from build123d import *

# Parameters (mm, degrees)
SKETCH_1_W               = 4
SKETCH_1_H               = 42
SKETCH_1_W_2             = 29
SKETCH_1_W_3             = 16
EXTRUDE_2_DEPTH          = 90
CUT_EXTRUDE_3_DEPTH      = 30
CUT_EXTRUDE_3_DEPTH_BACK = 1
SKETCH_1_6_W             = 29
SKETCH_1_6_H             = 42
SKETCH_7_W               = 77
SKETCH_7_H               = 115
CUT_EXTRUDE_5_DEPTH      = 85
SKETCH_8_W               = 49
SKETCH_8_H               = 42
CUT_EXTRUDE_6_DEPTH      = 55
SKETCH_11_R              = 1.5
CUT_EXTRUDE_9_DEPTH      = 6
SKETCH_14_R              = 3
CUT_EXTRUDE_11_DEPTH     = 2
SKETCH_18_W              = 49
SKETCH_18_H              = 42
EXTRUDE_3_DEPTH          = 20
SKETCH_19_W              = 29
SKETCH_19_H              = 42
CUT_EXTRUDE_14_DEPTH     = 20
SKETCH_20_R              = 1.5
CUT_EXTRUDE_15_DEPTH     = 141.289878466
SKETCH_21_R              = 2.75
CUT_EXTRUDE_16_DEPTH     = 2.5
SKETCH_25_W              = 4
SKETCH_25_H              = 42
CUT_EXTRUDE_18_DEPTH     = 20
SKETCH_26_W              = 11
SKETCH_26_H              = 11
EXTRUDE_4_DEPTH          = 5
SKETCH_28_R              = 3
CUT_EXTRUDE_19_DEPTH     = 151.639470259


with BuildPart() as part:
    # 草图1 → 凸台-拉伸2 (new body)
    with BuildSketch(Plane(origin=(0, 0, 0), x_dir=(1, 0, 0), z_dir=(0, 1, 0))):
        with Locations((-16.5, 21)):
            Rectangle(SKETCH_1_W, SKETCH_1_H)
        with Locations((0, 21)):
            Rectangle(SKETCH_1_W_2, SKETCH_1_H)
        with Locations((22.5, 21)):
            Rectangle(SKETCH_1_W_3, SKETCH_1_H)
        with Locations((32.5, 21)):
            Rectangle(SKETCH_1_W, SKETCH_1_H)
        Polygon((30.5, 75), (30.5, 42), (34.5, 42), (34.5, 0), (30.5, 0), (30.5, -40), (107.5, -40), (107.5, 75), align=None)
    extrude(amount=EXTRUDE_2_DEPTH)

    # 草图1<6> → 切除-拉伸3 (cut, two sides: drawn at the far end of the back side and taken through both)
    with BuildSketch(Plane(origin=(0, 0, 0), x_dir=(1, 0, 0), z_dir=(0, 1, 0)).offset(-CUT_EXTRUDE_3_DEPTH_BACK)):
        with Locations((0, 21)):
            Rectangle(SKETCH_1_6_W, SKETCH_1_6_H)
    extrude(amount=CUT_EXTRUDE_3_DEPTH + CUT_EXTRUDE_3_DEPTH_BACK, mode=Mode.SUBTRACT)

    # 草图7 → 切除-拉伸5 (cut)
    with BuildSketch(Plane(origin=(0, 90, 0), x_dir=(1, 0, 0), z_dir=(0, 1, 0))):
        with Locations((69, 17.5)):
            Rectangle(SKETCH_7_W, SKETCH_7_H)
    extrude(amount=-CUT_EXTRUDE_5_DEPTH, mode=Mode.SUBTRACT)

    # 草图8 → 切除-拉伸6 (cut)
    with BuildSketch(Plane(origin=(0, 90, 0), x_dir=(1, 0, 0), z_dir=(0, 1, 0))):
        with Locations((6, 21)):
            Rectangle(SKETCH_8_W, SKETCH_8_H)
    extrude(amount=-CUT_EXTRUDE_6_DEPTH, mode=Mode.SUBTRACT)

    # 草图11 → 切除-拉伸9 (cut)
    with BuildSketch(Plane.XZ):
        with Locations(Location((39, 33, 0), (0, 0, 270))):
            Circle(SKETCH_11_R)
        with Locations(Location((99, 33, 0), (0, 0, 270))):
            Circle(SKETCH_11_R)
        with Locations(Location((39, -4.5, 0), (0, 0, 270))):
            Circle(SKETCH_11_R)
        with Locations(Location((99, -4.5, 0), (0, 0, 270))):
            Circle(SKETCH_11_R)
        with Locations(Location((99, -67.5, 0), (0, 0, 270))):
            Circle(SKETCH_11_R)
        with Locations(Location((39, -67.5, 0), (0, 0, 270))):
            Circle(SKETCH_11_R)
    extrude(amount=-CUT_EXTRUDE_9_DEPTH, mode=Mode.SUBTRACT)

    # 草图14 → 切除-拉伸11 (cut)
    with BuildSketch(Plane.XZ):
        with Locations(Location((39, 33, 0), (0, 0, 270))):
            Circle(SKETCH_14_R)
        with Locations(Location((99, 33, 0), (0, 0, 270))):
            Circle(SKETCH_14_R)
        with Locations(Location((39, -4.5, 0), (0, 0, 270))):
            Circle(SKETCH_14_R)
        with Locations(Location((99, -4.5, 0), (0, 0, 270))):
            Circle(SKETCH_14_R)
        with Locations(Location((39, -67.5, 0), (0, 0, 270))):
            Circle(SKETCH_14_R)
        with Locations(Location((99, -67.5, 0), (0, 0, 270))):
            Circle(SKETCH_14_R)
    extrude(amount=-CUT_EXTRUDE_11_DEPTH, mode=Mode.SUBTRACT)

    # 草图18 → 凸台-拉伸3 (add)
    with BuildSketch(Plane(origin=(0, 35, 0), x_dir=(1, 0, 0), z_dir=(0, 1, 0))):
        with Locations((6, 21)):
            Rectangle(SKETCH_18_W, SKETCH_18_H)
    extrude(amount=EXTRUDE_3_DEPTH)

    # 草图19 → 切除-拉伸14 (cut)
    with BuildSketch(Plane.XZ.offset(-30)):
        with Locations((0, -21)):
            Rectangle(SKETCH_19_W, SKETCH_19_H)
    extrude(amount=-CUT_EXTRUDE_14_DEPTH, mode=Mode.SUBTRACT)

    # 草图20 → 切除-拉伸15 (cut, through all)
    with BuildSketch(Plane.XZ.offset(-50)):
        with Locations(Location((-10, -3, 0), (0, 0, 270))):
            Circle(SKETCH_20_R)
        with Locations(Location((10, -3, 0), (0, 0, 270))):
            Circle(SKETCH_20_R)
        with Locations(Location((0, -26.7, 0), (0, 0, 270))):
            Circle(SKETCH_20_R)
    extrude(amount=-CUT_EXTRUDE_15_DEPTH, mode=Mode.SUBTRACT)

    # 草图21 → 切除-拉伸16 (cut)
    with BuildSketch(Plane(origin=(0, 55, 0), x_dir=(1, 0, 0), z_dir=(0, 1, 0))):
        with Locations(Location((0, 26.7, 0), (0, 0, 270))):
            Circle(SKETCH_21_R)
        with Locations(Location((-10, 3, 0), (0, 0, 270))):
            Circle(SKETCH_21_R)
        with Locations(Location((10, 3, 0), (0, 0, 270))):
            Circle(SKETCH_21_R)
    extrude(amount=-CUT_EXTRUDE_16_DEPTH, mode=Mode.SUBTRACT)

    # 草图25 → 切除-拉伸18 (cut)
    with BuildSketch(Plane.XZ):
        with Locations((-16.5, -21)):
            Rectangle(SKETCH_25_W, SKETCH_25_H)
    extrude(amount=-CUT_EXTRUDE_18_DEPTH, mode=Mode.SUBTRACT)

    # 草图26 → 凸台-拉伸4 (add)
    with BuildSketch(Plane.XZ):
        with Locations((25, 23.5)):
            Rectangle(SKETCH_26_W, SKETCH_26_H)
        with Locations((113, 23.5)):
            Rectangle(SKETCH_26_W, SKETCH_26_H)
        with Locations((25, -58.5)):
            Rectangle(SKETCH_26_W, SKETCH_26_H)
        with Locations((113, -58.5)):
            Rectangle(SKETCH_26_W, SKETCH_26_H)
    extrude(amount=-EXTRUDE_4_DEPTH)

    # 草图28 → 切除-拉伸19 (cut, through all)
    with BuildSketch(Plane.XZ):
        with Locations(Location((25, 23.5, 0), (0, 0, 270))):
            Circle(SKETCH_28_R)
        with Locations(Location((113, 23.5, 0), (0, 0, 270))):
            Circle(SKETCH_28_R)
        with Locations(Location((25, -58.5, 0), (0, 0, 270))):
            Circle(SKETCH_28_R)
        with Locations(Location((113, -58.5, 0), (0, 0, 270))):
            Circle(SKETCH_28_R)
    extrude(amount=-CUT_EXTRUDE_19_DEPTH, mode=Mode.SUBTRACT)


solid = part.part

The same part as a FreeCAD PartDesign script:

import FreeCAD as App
import Part
import Sketcher
Q = App.Units.Quantity

doc = App.newDocument("Part")
body = doc.addObject("PartDesign::Body", "Body")

# Sketch on XZ plane
sketch1 = body.newObject("Sketcher::SketchObject", "Sketch")
sketch1.AttachmentSupport = (doc.getObject("XZ_Plane"), [""])
sketch1.MapMode = "FlatFace"
sketch1.addGeometry(Part.LineSegment(App.Vector(-18, -42, 0), App.Vector(-18, 0, 0)), False)
sketch1.addGeometry(Part.LineSegment(App.Vector(-18, 0, 0), App.Vector(30, 0, 0)), False)
sketch1.addGeometry(Part.LineSegment(App.Vector(30, 0, 0), App.Vector(30, 40, 0)), False)
sketch1.addGeometry(Part.LineSegment(App.Vector(30, 40, 0), App.Vector(108, 40, 0)), False)
sketch1.addGeometry(Part.LineSegment(App.Vector(108, 40, 0), App.Vector(108, -75, 0)), False)
sketch1.addGeometry(Part.LineSegment(App.Vector(108, -75, 0), App.Vector(30, -75, 0)), False)
sketch1.addGeometry(Part.LineSegment(App.Vector(30, -75, 0), App.Vector(30, -42, 0)), False)
sketch1.addGeometry(Part.LineSegment(App.Vector(30, -42, 0), App.Vector(-18, -42, 0)), False)
sketch1.addConstraint(Sketcher.Constraint("Coincident", 0, 2, 1, 1))
sketch1.addConstraint(Sketcher.Constraint("Coincident", 1, 2, 2, 1))
sketch1.addConstraint(Sketcher.Constraint("Coincident", 2, 2, 3, 1))
sketch1.addConstraint(Sketcher.Constraint("Coincident", 3, 2, 4, 1))
sketch1.addConstraint(Sketcher.Constraint("Coincident", 4, 2, 5, 1))
sketch1.addConstraint(Sketcher.Constraint("Coincident", 5, 2, 6, 1))
sketch1.addConstraint(Sketcher.Constraint("Coincident", 6, 2, 7, 1))
sketch1.addConstraint(Sketcher.Constraint("Coincident", 7, 2, 0, 1))
sketch1.addConstraint(Sketcher.Constraint("Vertical", 0))
sketch1.addConstraint(Sketcher.Constraint("Horizontal", 1))
sketch1.addConstraint(Sketcher.Constraint("Vertical", 2))
sketch1.addConstraint(Sketcher.Constraint("Horizontal", 3))
sketch1.addConstraint(Sketcher.Constraint("Vertical", 4))
sketch1.addConstraint(Sketcher.Constraint("Horizontal", 5))
sketch1.addConstraint(Sketcher.Constraint("Vertical", 6))
sketch1.addConstraint(Sketcher.Constraint("Horizontal", 7))
sketch1.addConstraint(Sketcher.Constraint("PointOnObject", 0, 2, -1))
sketch1.addConstraint(Sketcher.Constraint("Vertical", 2, 2, 5, 2))
sketch1.addConstraint(Sketcher.Constraint("DistanceX", 1, 1, 1, 2, Q("49 mm")))
sketch1.addConstraint(Sketcher.Constraint("DistanceX", 3, 1, 3, 2, Q("77 mm")))
sketch1.addConstraint(Sketcher.Constraint("DistanceY", 0, 1, 0, 2, Q("42 mm")))
sketch1.addConstraint(Sketcher.Constraint("DistanceY", 2, 1, 2, 2, Q("40 mm")))
sketch1.addConstraint(Sketcher.Constraint("DistanceY", 4, 2, 4, 1, Q("115 mm")))
sketch1.addConstraint(Sketcher.Constraint("DistanceX", 0, 2, -1, 1, Q("18.5 mm")))
pad1 = body.newObject("PartDesign::Pad", "Pad")
pad1.Profile = sketch1
pad1.Length = 90
pad1.Reversed = True

# Sketch on XZ plane
sketch2 = body.newObject("Sketcher::SketchObject", "Sketch001")
sketch2.AttachmentSupport = (doc.getObject("XZ_Plane"), [""])
sketch2.MapMode = "FlatFace"
sketch2.addGeometry(Part.LineSegment(App.Vector(-14, -42, 0), App.Vector(-14, 0, 0)), False)
sketch2.addGeometry(Part.LineSegment(App.Vector(-14, 0, 0), App.Vector(14, 0, 0)), False)
sketch2.addGeometry(Part.LineSegment(App.Vector(14, 0, 0), App.Vector(14, -42, 0)), False)
sketch2.addGeometry(Part.LineSegment(App.Vector(14, -42, 0), App.Vector(-14, -42, 0)), False)
sketch2.addConstraint(Sketcher.Constraint("Coincident", 0, 2, 1, 1))
sketch2.addConstraint(Sketcher.Constraint("Coincident", 1, 2, 2, 1))
sketch2.addConstraint(Sketcher.Constraint("Coincident", 2, 2, 3, 1))
sketch2.addConstraint(Sketcher.Constraint("Coincident", 3, 2, 0, 1))
sketch2.addConstraint(Sketcher.Constraint("Vertical", 0))
sketch2.addConstraint(Sketcher.Constraint("Horizontal", 1))
sketch2.addConstraint(Sketcher.Constraint("Vertical", 2))
sketch2.addConstraint(Sketcher.Constraint("Horizontal", 3))
sketch2.addConstraint(Sketcher.Constraint("Symmetric", 0, 2, 1, 2, -1, 1))
sketch2.addConstraint(Sketcher.Constraint("DistanceX", 1, 1, 1, 2, Q("29 mm")))
sketch2.addConstraint(Sketcher.Constraint("DistanceY", 0, 1, 0, 2, Q("42 mm")))
pocket1 = body.newObject("PartDesign::Pocket", "Pocket")
pocket1.Profile = sketch2
pocket1.Type = "TwoLengths"
pocket1.Length = 30
pocket1.Length2 = 1

# Sketch on XZ plane
sketch3 = body.newObject("Sketcher::SketchObject", "Sketch002")
sketch3.AttachmentSupport = (doc.getObject("XZ_Plane"), [""])
sketch3.MapMode = "FlatFace"
sketch3.AttachmentOffset = App.Placement(App.Vector(0, 0, -90), App.Rotation())
sketch3.addGeometry(Part.LineSegment(App.Vector(30, -75, 0), App.Vector(30, 40, 0)), False)
sketch3.addGeometry(Part.LineSegment(App.Vector(30, 40, 0), App.Vector(108, 40, 0)), False)
sketch3.addGeometry(Part.LineSegment(App.Vector(108, 40, 0), App.Vector(108, -75, 0)), False)
sketch3.addGeometry(Part.LineSegment(App.Vector(108, -75, 0), App.Vector(30, -75, 0)), False)
sketch3.addConstraint(Sketcher.Constraint("Coincident", 0, 2, 1, 1))
sketch3.addConstraint(Sketcher.Constraint("Coincident", 1, 2, 2, 1))
sketch3.addConstraint(Sketcher.Constraint("Coincident", 2, 2, 3, 1))
sketch3.addConstraint(Sketcher.Constraint("Coincident", 3, 2, 0, 1))
sketch3.addConstraint(Sketcher.Constraint("Vertical", 0))
sketch3.addConstraint(Sketcher.Constraint("Horizontal", 1))
sketch3.addConstraint(Sketcher.Constraint("Vertical", 2))
sketch3.addConstraint(Sketcher.Constraint("Horizontal", 3))
sketch3.addConstraint(Sketcher.Constraint("DistanceX", 1, 1, 1, 2, Q("77 mm")))
sketch3.addConstraint(Sketcher.Constraint("DistanceY", 0, 1, 0, 2, Q("115 mm")))
sketch3.addConstraint(Sketcher.Constraint("DistanceY", -1, 1, 0, 2, Q("40 mm")))
sketch3.addConstraint(Sketcher.Constraint("DistanceX", -1, 1, 0, 2, Q("30.5 mm")))
pocket2 = body.newObject("PartDesign::Pocket", "Pocket001")
pocket2.Profile = sketch3
pocket2.Length = 85
pocket2.Reversed = True

# Sketch on XZ plane
sketch4 = body.newObject("Sketcher::SketchObject", "Sketch003")
sketch4.AttachmentSupport = (doc.getObject("XZ_Plane"), [""])
sketch4.MapMode = "FlatFace"
sketch4.AttachmentOffset = App.Placement(App.Vector(0, 0, -90), App.Rotation())
sketch4.addGeometry(Part.LineSegment(App.Vector(-18, -42, 0), App.Vector(-18, 0, 0)), False)
sketch4.addGeometry(Part.LineSegment(App.Vector(-18, 0, 0), App.Vector(30, 0, 0)), False)
sketch4.addGeometry(Part.LineSegment(App.Vector(30, 0, 0), App.Vector(30, -42, 0)), False)
sketch4.addGeometry(Part.LineSegment(App.Vector(30, -42, 0), App.Vector(-18, -42, 0)), False)
sketch4.addConstraint(Sketcher.Constraint("Coincident", 0, 2, 1, 1))
sketch4.addConstraint(Sketcher.Constraint("Coincident", 1, 2, 2, 1))
sketch4.addConstraint(Sketcher.Constraint("Coincident", 2, 2, 3, 1))
sketch4.addConstraint(Sketcher.Constraint("Coincident", 3, 2, 0, 1))
sketch4.addConstraint(Sketcher.Constraint("Vertical", 0))
sketch4.addConstraint(Sketcher.Constraint("Horizontal", 1))
sketch4.addConstraint(Sketcher.Constraint("Vertical", 2))
sketch4.addConstraint(Sketcher.Constraint("Horizontal", 3))
sketch4.addConstraint(Sketcher.Constraint("PointOnObject", 0, 2, -1))
sketch4.addConstraint(Sketcher.Constraint("DistanceX", 1, 1, 1, 2, Q("49 mm")))
sketch4.addConstraint(Sketcher.Constraint("DistanceY", 0, 1, 0, 2, Q("42 mm")))
sketch4.addConstraint(Sketcher.Constraint("DistanceX", 0, 2, -1, 1, Q("18.5 mm")))
pocket3 = body.newObject("PartDesign::Pocket", "Pocket002")
pocket3.Profile = sketch4
pocket3.Length = 55
pocket3.Reversed = True

# Sketch on XZ plane
sketch5 = body.newObject("Sketcher::SketchObject", "Sketch004")
sketch5.AttachmentSupport = (doc.getObject("XZ_Plane"), [""])
sketch5.MapMode = "FlatFace"
sketch5.addGeometry(Part.Circle(App.Vector(39, 33, 0), App.Vector(0, 0, 1), 1.5), False)
sketch5.addGeometry(Part.Circle(App.Vector(99, 33, 0), App.Vector(0, 0, 1), 1.5), False)
sketch5.addGeometry(Part.Circle(App.Vector(39, -4.5, 0), App.Vector(0, 0, 1), 1.5), False)
sketch5.addGeometry(Part.Circle(App.Vector(99, -4.5, 0), App.Vector(0, 0, 1), 1.5), False)
sketch5.addGeometry(Part.Circle(App.Vector(99, -67.5, 0), App.Vector(0, 0, 1), 1.5), False)
sketch5.addGeometry(Part.Circle(App.Vector(39, -67.5, 0), App.Vector(0, 0, 1), 1.5), False)
sketch5.addConstraint(Sketcher.Constraint("Equal", 0, 1))
sketch5.addConstraint(Sketcher.Constraint("Equal", 1, 2))
sketch5.addConstraint(Sketcher.Constraint("Equal", 2, 3))
sketch5.addConstraint(Sketcher.Constraint("Equal", 3, 4))
sketch5.addConstraint(Sketcher.Constraint("Equal", 4, 5))
sketch5.addConstraint(Sketcher.Constraint("Horizontal", 0, 3, 1, 3))
sketch5.addConstraint(Sketcher.Constraint("Horizontal", 2, 3, 3, 3))
sketch5.addConstraint(Sketcher.Constraint("Horizontal", 4, 3, 5, 3))
sketch5.addConstraint(Sketcher.Constraint("Vertical", 0, 3, 2, 3))
sketch5.addConstraint(Sketcher.Constraint("Vertical", 1, 3, 3, 3))
sketch5.addConstraint(Sketcher.Constraint("Vertical", 3, 3, 4, 3))
sketch5.addConstraint(Sketcher.Constraint("Vertical", 2, 3, 5, 3))
sketch5.addConstraint(Sketcher.Constraint("Diameter", 0, Q("3 mm")))
sketch5.addConstraint(Sketcher.Constraint("DistanceX", -1, 1, 0, 3, Q("39 mm")))
sketch5.addConstraint(Sketcher.Constraint("DistanceY", -1, 1, 0, 3, Q("33 mm")))
sketch5.addConstraint(Sketcher.Constraint("DistanceX", -1, 1, 1, 3, Q("99 mm")))
sketch5.addConstraint(Sketcher.Constraint("DistanceY", 4, 3, 3, 3, Q("63 mm")))
sketch5.addConstraint(Sketcher.Constraint("DistanceY", 2, 3, -1, 1, Q("4.5 mm")))
pocket4 = body.newObject("PartDesign::Pocket", "Pocket003")
pocket4.Profile = sketch5
pocket4.Length = 6

# Sketch on XZ plane
sketch6 = body.newObject("Sketcher::SketchObject", "Sketch005")
sketch6.AttachmentSupport = (doc.getObject("XZ_Plane"), [""])
sketch6.MapMode = "FlatFace"
sketch6.addGeometry(Part.Circle(App.Vector(39, 33, 0), App.Vector(0, 0, 1), 3), False)
sketch6.addGeometry(Part.Circle(App.Vector(99, 33, 0), App.Vector(0, 0, 1), 3), False)
sketch6.addGeometry(Part.Circle(App.Vector(39, -4.5, 0), App.Vector(0, 0, 1), 3), False)
sketch6.addGeometry(Part.Circle(App.Vector(99, -4.5, 0), App.Vector(0, 0, 1), 3), False)
sketch6.addGeometry(Part.Circle(App.Vector(39, -67.5, 0), App.Vector(0, 0, 1), 3), False)
sketch6.addGeometry(Part.Circle(App.Vector(99, -67.5, 0), App.Vector(0, 0, 1), 3), False)
sketch6.addConstraint(Sketcher.Constraint("Equal", 0, 1))
sketch6.addConstraint(Sketcher.Constraint("Equal", 1, 2))
sketch6.addConstraint(Sketcher.Constraint("Equal", 2, 3))
sketch6.addConstraint(Sketcher.Constraint("Equal", 3, 4))
sketch6.addConstraint(Sketcher.Constraint("Equal", 4, 5))
sketch6.addConstraint(Sketcher.Constraint("Horizontal", 0, 3, 1, 3))
sketch6.addConstraint(Sketcher.Constraint("Horizontal", 2, 3, 3, 3))
sketch6.addConstraint(Sketcher.Constraint("Horizontal", 4, 3, 5, 3))
sketch6.addConstraint(Sketcher.Constraint("Vertical", 0, 3, 2, 3))
sketch6.addConstraint(Sketcher.Constraint("Vertical", 1, 3, 3, 3))
sketch6.addConstraint(Sketcher.Constraint("Vertical", 2, 3, 4, 3))
sketch6.addConstraint(Sketcher.Constraint("Vertical", 3, 3, 5, 3))
sketch6.addConstraint(Sketcher.Constraint("Diameter", 0, Q("6 mm")))
sketch6.addConstraint(Sketcher.Constraint("DistanceX", -1, 1, 0, 3, Q("39 mm")))
sketch6.addConstraint(Sketcher.Constraint("DistanceY", -1, 1, 0, 3, Q("33 mm")))
sketch6.addConstraint(Sketcher.Constraint("DistanceX", -1, 1, 1, 3, Q("99 mm")))
sketch6.addConstraint(Sketcher.Constraint("DistanceY", 4, 3, 2, 3, Q("63 mm")))
sketch6.addConstraint(Sketcher.Constraint("DistanceY", 2, 3, -1, 1, Q("4.5 mm")))
pocket5 = body.newObject("PartDesign::Pocket", "Pocket004")
pocket5.Profile = sketch6
pocket5.Length = 2

# Sketch on XZ plane
sketch7 = body.newObject("Sketcher::SketchObject", "Sketch006")
sketch7.AttachmentSupport = (doc.getObject("XZ_Plane"), [""])
sketch7.MapMode = "FlatFace"
sketch7.AttachmentOffset = App.Placement(App.Vector(0, 0, -35), App.Rotation())
sketch7.addGeometry(Part.LineSegment(App.Vector(-18, -42, 0), App.Vector(-18, 0, 0)), False)
sketch7.addGeometry(Part.LineSegment(App.Vector(-18, 0, 0), App.Vector(30, 0, 0)), False)
sketch7.addGeometry(Part.LineSegment(App.Vector(30, 0, 0), App.Vector(30, -42, 0)), False)
sketch7.addGeometry(Part.LineSegment(App.Vector(30, -42, 0), App.Vector(-18, -42, 0)), False)
sketch7.addConstraint(Sketcher.Constraint("Coincident", 0, 2, 1, 1))
sketch7.addConstraint(Sketcher.Constraint("Coincident", 1, 2, 2, 1))
sketch7.addConstraint(Sketcher.Constraint("Coincident", 2, 2, 3, 1))
sketch7.addConstraint(Sketcher.Constraint("Coincident", 3, 2, 0, 1))
sketch7.addConstraint(Sketcher.Constraint("Vertical", 0))
sketch7.addConstraint(Sketcher.Constraint("Horizontal", 1))
sketch7.addConstraint(Sketcher.Constraint("Vertical", 2))
sketch7.addConstraint(Sketcher.Constraint("Horizontal", 3))
sketch7.addConstraint(Sketcher.Constraint("PointOnObject", 0, 2, -1))
sketch7.addConstraint(Sketcher.Constraint("DistanceX", 1, 1, 1, 2, Q("49 mm")))
sketch7.addConstraint(Sketcher.Constraint("DistanceY", 0, 1, 0, 2, Q("42 mm")))
sketch7.addConstraint(Sketcher.Constraint("DistanceX", 0, 2, -1, 1, Q("18.5 mm")))
pad2 = body.newObject("PartDesign::Pad", "Pad001")
pad2.Profile = sketch7
pad2.Length = 20
pad2.Reversed = True

# Sketch on XZ plane
sketch8 = body.newObject("Sketcher::SketchObject", "Sketch007")
sketch8.AttachmentSupport = (doc.getObject("XZ_Plane"), [""])
sketch8.MapMode = "FlatFace"
sketch8.AttachmentOffset = App.Placement(App.Vector(0, 0, -30), App.Rotation())
sketch8.addGeometry(Part.LineSegment(App.Vector(-14, 0, 0), App.Vector(-14, -42, 0)), False)
sketch8.addGeometry(Part.LineSegment(App.Vector(-14, -42, 0), App.Vector(14, -42, 0)), False)
sketch8.addGeometry(Part.LineSegment(App.Vector(14, -42, 0), App.Vector(14, 0, 0)), False)
sketch8.addGeometry(Part.LineSegment(App.Vector(14, 0, 0), App.Vector(-14, 0, 0)), False)
sketch8.addConstraint(Sketcher.Constraint("Coincident", 0, 2, 1, 1))
sketch8.addConstraint(Sketcher.Constraint("Coincident", 1, 2, 2, 1))
sketch8.addConstraint(Sketcher.Constraint("Coincident", 2, 2, 3, 1))
sketch8.addConstraint(Sketcher.Constraint("Coincident", 3, 2, 0, 1))
sketch8.addConstraint(Sketcher.Constraint("Vertical", 0))
sketch8.addConstraint(Sketcher.Constraint("Horizontal", 1))
sketch8.addConstraint(Sketcher.Constraint("Vertical", 2))
sketch8.addConstraint(Sketcher.Constraint("Horizontal", 3))
sketch8.addConstraint(Sketcher.Constraint("Symmetric", 2, 2, 3, 2, -1, 1))
sketch8.addConstraint(Sketcher.Constraint("DistanceX", 1, 1, 1, 2, Q("29 mm")))
sketch8.addConstraint(Sketcher.Constraint("DistanceY", 0, 2, 0, 1, Q("42 mm")))
pocket6 = body.newObject("PartDesign::Pocket", "Pocket005")
pocket6.Profile = sketch8
pocket6.Length = 20

# Sketch on XZ plane
sketch9 = body.newObject("Sketcher::SketchObject", "Sketch008")
sketch9.AttachmentSupport = (doc.getObject("XZ_Plane"), [""])
sketch9.MapMode = "FlatFace"
sketch9.AttachmentOffset = App.Placement(App.Vector(0, 0, -50), App.Rotation())
sketch9.addGeometry(Part.Circle(App.Vector(-10, -3, 0), App.Vector(0, 0, 1), 1.5), False)
sketch9.addGeometry(Part.Circle(App.Vector(10, -3, 0), App.Vector(0, 0, 1), 1.5), False)
sketch9.addGeometry(Part.Circle(App.Vector(0, -26.7, 0), App.Vector(0, 0, 1), 1.5), False)
sketch9.addConstraint(Sketcher.Constraint("Equal", 0, 1))
sketch9.addConstraint(Sketcher.Constraint("Equal", 1, 2))
sketch9.addConstraint(Sketcher.Constraint("Symmetric", 0, 3, 1, 3, -2))
sketch9.addConstraint(Sketcher.Constraint("PointOnObject", 2, 3, -2))
sketch9.addConstraint(Sketcher.Constraint("Diameter", 0, Q("3 mm")))
sketch9.addConstraint(Sketcher.Constraint("DistanceX", 0, 3, -1, 1, Q("10 mm")))
sketch9.addConstraint(Sketcher.Constraint("DistanceY", 0, 3, -1, 1, Q("3 mm")))
sketch9.addConstraint(Sketcher.Constraint("DistanceY", 2, 3, -1, 1, Q("26.7 mm")))
pocket7 = body.newObject("PartDesign::Pocket", "Pocket006")
pocket7.Profile = sketch9
pocket7.Type = "ThroughAll"

# Sketch on XZ plane
sketch10 = body.newObject("Sketcher::SketchObject", "Sketch009")
sketch10.AttachmentSupport = (doc.getObject("XZ_Plane"), [""])
sketch10.MapMode = "FlatFace"
sketch10.AttachmentOffset = App.Placement(App.Vector(0, 0, -55), App.Rotation())
sketch10.addGeometry(Part.Circle(App.Vector(0, -26.7, 0), App.Vector(0, 0, 1), 2.8), False)
sketch10.addGeometry(Part.Circle(App.Vector(-10, -3, 0), App.Vector(0, 0, 1), 2.8), False)
sketch10.addGeometry(Part.Circle(App.Vector(10, -3, 0), App.Vector(0, 0, 1), 2.8), False)
sketch10.addConstraint(Sketcher.Constraint("Equal", 0, 1))
sketch10.addConstraint(Sketcher.Constraint("Equal", 1, 2))
sketch10.addConstraint(Sketcher.Constraint("Symmetric", 1, 3, 2, 3, -2))
sketch10.addConstraint(Sketcher.Constraint("PointOnObject", 0, 3, -2))
sketch10.addConstraint(Sketcher.Constraint("Diameter", 0, Q("5.5 mm")))
sketch10.addConstraint(Sketcher.Constraint("DistanceX", 1, 3, -1, 1, Q("10 mm")))
sketch10.addConstraint(Sketcher.Constraint("DistanceY", 1, 3, -1, 1, Q("3 mm")))
sketch10.addConstraint(Sketcher.Constraint("DistanceY", 0, 3, -1, 1, Q("26.7 mm")))
pocket8 = body.newObject("PartDesign::Pocket", "Pocket007")
pocket8.Profile = sketch10
pocket8.Length = 2.5
pocket8.Reversed = True

# Sketch on XZ plane
sketch11 = body.newObject("Sketcher::SketchObject", "Sketch010")
sketch11.AttachmentSupport = (doc.getObject("XZ_Plane"), [""])
sketch11.MapMode = "FlatFace"
sketch11.addGeometry(Part.LineSegment(App.Vector(-18.5, 0, 0), App.Vector(-18.5, -42, 0)), False)
sketch11.addGeometry(Part.LineSegment(App.Vector(-18.5, -42, 0), App.Vector(-14.5, -42, 0)), False)
sketch11.addGeometry(Part.LineSegment(App.Vector(-14.5, -42, 0), App.Vector(-14.5, 0, 0)), False)
sketch11.addGeometry(Part.LineSegment(App.Vector(-14.5, 0, 0), App.Vector(-18.5, 0, 0)), False)
sketch11.addConstraint(Sketcher.Constraint("Coincident", 0, 2, 1, 1))
sketch11.addConstraint(Sketcher.Constraint("Coincident", 1, 2, 2, 1))
sketch11.addConstraint(Sketcher.Constraint("Coincident", 2, 2, 3, 1))
sketch11.addConstraint(Sketcher.Constraint("Coincident", 3, 2, 0, 1))
sketch11.addConstraint(Sketcher.Constraint("Vertical", 0))
sketch11.addConstraint(Sketcher.Constraint("Horizontal", 1))
sketch11.addConstraint(Sketcher.Constraint("Vertical", 2))
sketch11.addConstraint(Sketcher.Constraint("Horizontal", 3))
sketch11.addConstraint(Sketcher.Constraint("PointOnObject", 2, 2, -1))
sketch11.addConstraint(Sketcher.Constraint("DistanceX", 1, 1, 1, 2, Q("4 mm")))
sketch11.addConstraint(Sketcher.Constraint("DistanceY", 0, 2, 0, 1, Q("42 mm")))
sketch11.addConstraint(Sketcher.Constraint("DistanceX", 0, 2, -1, 1, Q("18.5 mm")))
pocket9 = body.newObject("PartDesign::Pocket", "Pocket008")
pocket9.Profile = sketch11
pocket9.Length = 20

# Sketch on XZ plane
sketch12 = body.newObject("Sketcher::SketchObject", "Sketch011")
sketch12.AttachmentSupport = (doc.getObject("XZ_Plane"), [""])
sketch12.MapMode = "FlatFace"
sketch12.addGeometry(Part.LineSegment(App.Vector(20, 29, 0), App.Vector(20, 18, 0)), False)
sketch12.addGeometry(Part.LineSegment(App.Vector(20, 18, 0), App.Vector(30, 18, 0)), False)
sketch12.addGeometry(Part.LineSegment(App.Vector(30, 18, 0), App.Vector(30, 29, 0)), False)
sketch12.addGeometry(Part.LineSegment(App.Vector(30, 29, 0), App.Vector(20, 29, 0)), False)
sketch12.addGeometry(Part.LineSegment(App.Vector(108, 29, 0), App.Vector(108, 18, 0)), False)
sketch12.addGeometry(Part.LineSegment(App.Vector(108, 18, 0), App.Vector(118, 18, 0)), False)
sketch12.addGeometry(Part.LineSegment(App.Vector(118, 18, 0), App.Vector(118, 29, 0)), False)
sketch12.addGeometry(Part.LineSegment(App.Vector(118, 29, 0), App.Vector(108, 29, 0)), False)
sketch12.addGeometry(Part.LineSegment(App.Vector(20, -53, 0), App.Vector(20, -64, 0)), False)
sketch12.addGeometry(Part.LineSegment(App.Vector(20, -64, 0), App.Vector(30, -64, 0)), False)
sketch12.addGeometry(Part.LineSegment(App.Vector(30, -64, 0), App.Vector(30, -53, 0)), False)
sketch12.addGeometry(Part.LineSegment(App.Vector(30, -53, 0), App.Vector(20, -53, 0)), False)
sketch12.addGeometry(Part.LineSegment(App.Vector(108, -53, 0), App.Vector(108, -64, 0)), False)
sketch12.addGeometry(Part.LineSegment(App.Vector(108, -64, 0), App.Vector(118, -64, 0)), False)
sketch12.addGeometry(Part.LineSegment(App.Vector(118, -64, 0), App.Vector(118, -53, 0)), False)
sketch12.addGeometry(Part.LineSegment(App.Vector(118, -53, 0), App.Vector(108, -53, 0)), False)
sketch12.addConstraint(Sketcher.Constraint("Coincident", 0, 2, 1, 1))
sketch12.addConstraint(Sketcher.Constraint("Coincident", 1, 2, 2, 1))
sketch12.addConstraint(Sketcher.Constraint("Coincident", 2, 2, 3, 1))
sketch12.addConstraint(Sketcher.Constraint("Coincident", 3, 2, 0, 1))
sketch12.addConstraint(Sketcher.Constraint("Coincident", 4, 2, 5, 1))
sketch12.addConstraint(Sketcher.Constraint("Coincident", 5, 2, 6, 1))
sketch12.addConstraint(Sketcher.Constraint("Coincident", 6, 2, 7, 1))
sketch12.addConstraint(Sketcher.Constraint("Coincident", 7, 2, 4, 1))
sketch12.addConstraint(Sketcher.Constraint("Coincident", 8, 2, 9, 1))
sketch12.addConstraint(Sketcher.Constraint("Coincident", 9, 2, 10, 1))
sketch12.addConstraint(Sketcher.Constraint("Coincident", 10, 2, 11, 1))
sketch12.addConstraint(Sketcher.Constraint("Coincident", 11, 2, 8, 1))
sketch12.addConstraint(Sketcher.Constraint("Coincident", 12, 2, 13, 1))
sketch12.addConstraint(Sketcher.Constraint("Coincident", 13, 2, 14, 1))
sketch12.addConstraint(Sketcher.Constraint("Coincident", 14, 2, 15, 1))
sketch12.addConstraint(Sketcher.Constraint("Coincident", 15, 2, 12, 1))
sketch12.addConstraint(Sketcher.Constraint("Vertical", 0))
sketch12.addConstraint(Sketcher.Constraint("Horizontal", 1))
sketch12.addConstraint(Sketcher.Constraint("Vertical", 2))
sketch12.addConstraint(Sketcher.Constraint("Horizontal", 3))
sketch12.addConstraint(Sketcher.Constraint("Vertical", 4))
sketch12.addConstraint(Sketcher.Constraint("Horizontal", 5))
sketch12.addConstraint(Sketcher.Constraint("Vertical", 6))
sketch12.addConstraint(Sketcher.Constraint("Horizontal", 7))
sketch12.addConstraint(Sketcher.Constraint("Vertical", 8))
sketch12.addConstraint(Sketcher.Constraint("Horizontal", 9))
sketch12.addConstraint(Sketcher.Constraint("Vertical", 10))
sketch12.addConstraint(Sketcher.Constraint("Horizontal", 11))
sketch12.addConstraint(Sketcher.Constraint("Vertical", 12))
sketch12.addConstraint(Sketcher.Constraint("Horizontal", 13))
sketch12.addConstraint(Sketcher.Constraint("Vertical", 14))
sketch12.addConstraint(Sketcher.Constraint("Horizontal", 15))
sketch12.addConstraint(Sketcher.Constraint("Horizontal", 1, 2, 4, 2))
sketch12.addConstraint(Sketcher.Constraint("Horizontal", 3, 2, 6, 2))
sketch12.addConstraint(Sketcher.Constraint("Horizontal", 9, 2, 12, 2))
sketch12.addConstraint(Sketcher.Constraint("Horizontal", 11, 2, 14, 2))
sketch12.addConstraint(Sketcher.Constraint("Vertical", 3, 2, 8, 2))
sketch12.addConstraint(Sketcher.Constraint("Vertical", 2, 2, 9, 2))
sketch12.addConstraint(Sketcher.Constraint("Vertical", 7, 2, 12, 2))
sketch12.addConstraint(Sketcher.Constraint("Vertical", 6, 2, 13, 2))
sketch12.addConstraint(Sketcher.Constraint("Equal", 3, 5))
sketch12.addConstraint(Sketcher.Constraint("Equal", 15, 0))
sketch12.addConstraint(Sketcher.Constraint("Equal", 6, 8))
sketch12.addConstraint(Sketcher.Constraint("DistanceX", 1, 1, 1, 2, Q("11 mm")))
sketch12.addConstraint(Sketcher.Constraint("DistanceY", -1, 1, 0, 2, Q("18 mm")))
sketch12.addConstraint(Sketcher.Constraint("DistanceY", 8, 2, -1, 1, Q("64 mm")))
sketch12.addConstraint(Sketcher.Constraint("DistanceX", 1, 2, 4, 2, Q("77 mm")))
sketch12.addConstraint(Sketcher.Constraint("DistanceX", -1, 1, 0, 2, Q("19.5 mm")))
pad3 = body.newObject("PartDesign::Pad", "Pad002")
pad3.Profile = sketch12
pad3.Length = 5
pad3.Reversed = True

# Sketch on XZ plane
sketch13 = body.newObject("Sketcher::SketchObject", "Sketch012")
sketch13.AttachmentSupport = (doc.getObject("XZ_Plane"), [""])
sketch13.MapMode = "FlatFace"
sketch13.addGeometry(Part.Circle(App.Vector(25, 23.5, 0), App.Vector(0, 0, 1), 3), False)
sketch13.addGeometry(Part.Circle(App.Vector(113, 23.5, 0), App.Vector(0, 0, 1), 3), False)
sketch13.addGeometry(Part.Circle(App.Vector(25, -58.5, 0), App.Vector(0, 0, 1), 3), False)
sketch13.addGeometry(Part.Circle(App.Vector(113, -58.5, 0), App.Vector(0, 0, 1), 3), False)
sketch13.addConstraint(Sketcher.Constraint("Equal", 0, 1))
sketch13.addConstraint(Sketcher.Constraint("Equal", 1, 2))
sketch13.addConstraint(Sketcher.Constraint("Equal", 2, 3))
sketch13.addConstraint(Sketcher.Constraint("Horizontal", 0, 3, 1, 3))
sketch13.addConstraint(Sketcher.Constraint("Horizontal", 2, 3, 3, 3))
sketch13.addConstraint(Sketcher.Constraint("Vertical", 0, 3, 2, 3))
sketch13.addConstraint(Sketcher.Constraint("Vertical", 1, 3, 3, 3))
sketch13.addConstraint(Sketcher.Constraint("Diameter", 0, Q("6 mm")))
sketch13.addConstraint(Sketcher.Constraint("DistanceX", -1, 1, 0, 3, Q("25 mm")))
sketch13.addConstraint(Sketcher.Constraint("DistanceX", -1, 1, 1, 3, Q("113 mm")))
sketch13.addConstraint(Sketcher.Constraint("DistanceY", 2, 3, 0, 3, Q("82 mm")))
sketch13.addConstraint(Sketcher.Constraint("DistanceY", -1, 1, 0, 3, Q("23.5 mm")))
pocket10 = body.newObject("PartDesign::Pocket", "Pocket009")
pocket10.Profile = sketch13
pocket10.Type = "ThroughAll"

doc.recompute()
